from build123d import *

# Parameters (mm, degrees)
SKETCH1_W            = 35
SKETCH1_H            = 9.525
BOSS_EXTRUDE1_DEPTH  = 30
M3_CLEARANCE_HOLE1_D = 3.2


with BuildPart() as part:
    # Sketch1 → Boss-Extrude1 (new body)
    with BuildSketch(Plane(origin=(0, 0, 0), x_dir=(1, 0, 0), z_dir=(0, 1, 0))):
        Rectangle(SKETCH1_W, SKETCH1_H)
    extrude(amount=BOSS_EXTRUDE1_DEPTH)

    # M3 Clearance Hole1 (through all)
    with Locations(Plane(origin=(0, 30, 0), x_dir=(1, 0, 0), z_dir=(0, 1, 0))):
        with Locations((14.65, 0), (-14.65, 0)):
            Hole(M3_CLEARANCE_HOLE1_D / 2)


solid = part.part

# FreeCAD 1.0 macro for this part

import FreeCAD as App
import Part
import Sketcher

V = App.Vector
Q = App.Units.Quantity

doc = App.newDocument("Part")
body = doc.addObject("PartDesign::Body", "Body")

# Sketch on XZ plane
sketch1 = body.newObject("Sketcher::SketchObject", "Sketch")
sketch1.AttachmentSupport = (doc.getObject("XZ_Plane"), [""])
sketch1.MapMode = "FlatFace"
sketch1.addGeometry([
    Part.LineSegment(V(-18, -5, 0), V(-18, 5, 0)),
    Part.LineSegment(V(-18, 5, 0), V(18, 5, 0)),
    Part.LineSegment(V(18, 5, 0), V(18, -5, 0)),
    Part.LineSegment(V(18, -5, 0), V(-18, -5, 0)),
], False)
sketch1.addConstraint([
    Sketcher.Constraint("Coincident", 0, 2, 1, 1),
    Sketcher.Constraint("Coincident", 1, 2, 2, 1),
    Sketcher.Constraint("Coincident", 2, 2, 3, 1),
    Sketcher.Constraint("Coincident", 3, 2, 0, 1),
    Sketcher.Constraint("Vertical", 0),
    Sketcher.Constraint("Horizontal", 1),
    Sketcher.Constraint("Vertical", 2),
    Sketcher.Constraint("Horizontal", 3),
    Sketcher.Constraint("Symmetric", 0, 2, 2, 2, -1, 1),
    Sketcher.Constraint("DistanceX", 1, 1, 1, 2, Q("35 mm")),
    Sketcher.Constraint("DistanceY", 0, 1, 0, 2, Q("9.525 mm")),
])
pad1 = body.newObject("PartDesign::Pad", "Pad")
pad1.Profile = sketch1
pad1.Length = 30
pad1.Reversed = True

# Sketch on XZ plane
sketch2 = body.newObject("Sketcher::SketchObject", "Sketch001")
sketch2.AttachmentSupport = (doc.getObject("XZ_Plane"), [""])
sketch2.MapMode = "FlatFace"
sketch2.AttachmentOffset = App.Placement(V(0, 0, -30), App.Rotation())
sketch2.addGeometry([
    Part.Circle(V(14.7, 0, 0), V(0, 0, 1), 1.6),
    Part.Circle(V(-14.7, 0, 0), V(0, 0, 1), 1.6),
], False)
sketch2.addConstraint([
    Sketcher.Constraint("Equal", 0, 1),
    Sketcher.Constraint("Symmetric", 0, 3, 1, 3, -1, 1),
    Sketcher.Constraint("PointOnObject", 0, 3, -1),
    Sketcher.Constraint("Diameter", 0, Q("3.2 mm")),
    Sketcher.Constraint("DistanceX", 1, 3, 0, 3, Q("29.3 mm")),
])
doc.recompute()
hole = body.newObject("PartDesign::Hole", "Hole")
hole.Profile = sketch2
hole.ThreadType = "None"
hole.Diameter = 3.2
hole.DepthType = "ThroughAll"
hole.Reversed = True

doc.recompute()
